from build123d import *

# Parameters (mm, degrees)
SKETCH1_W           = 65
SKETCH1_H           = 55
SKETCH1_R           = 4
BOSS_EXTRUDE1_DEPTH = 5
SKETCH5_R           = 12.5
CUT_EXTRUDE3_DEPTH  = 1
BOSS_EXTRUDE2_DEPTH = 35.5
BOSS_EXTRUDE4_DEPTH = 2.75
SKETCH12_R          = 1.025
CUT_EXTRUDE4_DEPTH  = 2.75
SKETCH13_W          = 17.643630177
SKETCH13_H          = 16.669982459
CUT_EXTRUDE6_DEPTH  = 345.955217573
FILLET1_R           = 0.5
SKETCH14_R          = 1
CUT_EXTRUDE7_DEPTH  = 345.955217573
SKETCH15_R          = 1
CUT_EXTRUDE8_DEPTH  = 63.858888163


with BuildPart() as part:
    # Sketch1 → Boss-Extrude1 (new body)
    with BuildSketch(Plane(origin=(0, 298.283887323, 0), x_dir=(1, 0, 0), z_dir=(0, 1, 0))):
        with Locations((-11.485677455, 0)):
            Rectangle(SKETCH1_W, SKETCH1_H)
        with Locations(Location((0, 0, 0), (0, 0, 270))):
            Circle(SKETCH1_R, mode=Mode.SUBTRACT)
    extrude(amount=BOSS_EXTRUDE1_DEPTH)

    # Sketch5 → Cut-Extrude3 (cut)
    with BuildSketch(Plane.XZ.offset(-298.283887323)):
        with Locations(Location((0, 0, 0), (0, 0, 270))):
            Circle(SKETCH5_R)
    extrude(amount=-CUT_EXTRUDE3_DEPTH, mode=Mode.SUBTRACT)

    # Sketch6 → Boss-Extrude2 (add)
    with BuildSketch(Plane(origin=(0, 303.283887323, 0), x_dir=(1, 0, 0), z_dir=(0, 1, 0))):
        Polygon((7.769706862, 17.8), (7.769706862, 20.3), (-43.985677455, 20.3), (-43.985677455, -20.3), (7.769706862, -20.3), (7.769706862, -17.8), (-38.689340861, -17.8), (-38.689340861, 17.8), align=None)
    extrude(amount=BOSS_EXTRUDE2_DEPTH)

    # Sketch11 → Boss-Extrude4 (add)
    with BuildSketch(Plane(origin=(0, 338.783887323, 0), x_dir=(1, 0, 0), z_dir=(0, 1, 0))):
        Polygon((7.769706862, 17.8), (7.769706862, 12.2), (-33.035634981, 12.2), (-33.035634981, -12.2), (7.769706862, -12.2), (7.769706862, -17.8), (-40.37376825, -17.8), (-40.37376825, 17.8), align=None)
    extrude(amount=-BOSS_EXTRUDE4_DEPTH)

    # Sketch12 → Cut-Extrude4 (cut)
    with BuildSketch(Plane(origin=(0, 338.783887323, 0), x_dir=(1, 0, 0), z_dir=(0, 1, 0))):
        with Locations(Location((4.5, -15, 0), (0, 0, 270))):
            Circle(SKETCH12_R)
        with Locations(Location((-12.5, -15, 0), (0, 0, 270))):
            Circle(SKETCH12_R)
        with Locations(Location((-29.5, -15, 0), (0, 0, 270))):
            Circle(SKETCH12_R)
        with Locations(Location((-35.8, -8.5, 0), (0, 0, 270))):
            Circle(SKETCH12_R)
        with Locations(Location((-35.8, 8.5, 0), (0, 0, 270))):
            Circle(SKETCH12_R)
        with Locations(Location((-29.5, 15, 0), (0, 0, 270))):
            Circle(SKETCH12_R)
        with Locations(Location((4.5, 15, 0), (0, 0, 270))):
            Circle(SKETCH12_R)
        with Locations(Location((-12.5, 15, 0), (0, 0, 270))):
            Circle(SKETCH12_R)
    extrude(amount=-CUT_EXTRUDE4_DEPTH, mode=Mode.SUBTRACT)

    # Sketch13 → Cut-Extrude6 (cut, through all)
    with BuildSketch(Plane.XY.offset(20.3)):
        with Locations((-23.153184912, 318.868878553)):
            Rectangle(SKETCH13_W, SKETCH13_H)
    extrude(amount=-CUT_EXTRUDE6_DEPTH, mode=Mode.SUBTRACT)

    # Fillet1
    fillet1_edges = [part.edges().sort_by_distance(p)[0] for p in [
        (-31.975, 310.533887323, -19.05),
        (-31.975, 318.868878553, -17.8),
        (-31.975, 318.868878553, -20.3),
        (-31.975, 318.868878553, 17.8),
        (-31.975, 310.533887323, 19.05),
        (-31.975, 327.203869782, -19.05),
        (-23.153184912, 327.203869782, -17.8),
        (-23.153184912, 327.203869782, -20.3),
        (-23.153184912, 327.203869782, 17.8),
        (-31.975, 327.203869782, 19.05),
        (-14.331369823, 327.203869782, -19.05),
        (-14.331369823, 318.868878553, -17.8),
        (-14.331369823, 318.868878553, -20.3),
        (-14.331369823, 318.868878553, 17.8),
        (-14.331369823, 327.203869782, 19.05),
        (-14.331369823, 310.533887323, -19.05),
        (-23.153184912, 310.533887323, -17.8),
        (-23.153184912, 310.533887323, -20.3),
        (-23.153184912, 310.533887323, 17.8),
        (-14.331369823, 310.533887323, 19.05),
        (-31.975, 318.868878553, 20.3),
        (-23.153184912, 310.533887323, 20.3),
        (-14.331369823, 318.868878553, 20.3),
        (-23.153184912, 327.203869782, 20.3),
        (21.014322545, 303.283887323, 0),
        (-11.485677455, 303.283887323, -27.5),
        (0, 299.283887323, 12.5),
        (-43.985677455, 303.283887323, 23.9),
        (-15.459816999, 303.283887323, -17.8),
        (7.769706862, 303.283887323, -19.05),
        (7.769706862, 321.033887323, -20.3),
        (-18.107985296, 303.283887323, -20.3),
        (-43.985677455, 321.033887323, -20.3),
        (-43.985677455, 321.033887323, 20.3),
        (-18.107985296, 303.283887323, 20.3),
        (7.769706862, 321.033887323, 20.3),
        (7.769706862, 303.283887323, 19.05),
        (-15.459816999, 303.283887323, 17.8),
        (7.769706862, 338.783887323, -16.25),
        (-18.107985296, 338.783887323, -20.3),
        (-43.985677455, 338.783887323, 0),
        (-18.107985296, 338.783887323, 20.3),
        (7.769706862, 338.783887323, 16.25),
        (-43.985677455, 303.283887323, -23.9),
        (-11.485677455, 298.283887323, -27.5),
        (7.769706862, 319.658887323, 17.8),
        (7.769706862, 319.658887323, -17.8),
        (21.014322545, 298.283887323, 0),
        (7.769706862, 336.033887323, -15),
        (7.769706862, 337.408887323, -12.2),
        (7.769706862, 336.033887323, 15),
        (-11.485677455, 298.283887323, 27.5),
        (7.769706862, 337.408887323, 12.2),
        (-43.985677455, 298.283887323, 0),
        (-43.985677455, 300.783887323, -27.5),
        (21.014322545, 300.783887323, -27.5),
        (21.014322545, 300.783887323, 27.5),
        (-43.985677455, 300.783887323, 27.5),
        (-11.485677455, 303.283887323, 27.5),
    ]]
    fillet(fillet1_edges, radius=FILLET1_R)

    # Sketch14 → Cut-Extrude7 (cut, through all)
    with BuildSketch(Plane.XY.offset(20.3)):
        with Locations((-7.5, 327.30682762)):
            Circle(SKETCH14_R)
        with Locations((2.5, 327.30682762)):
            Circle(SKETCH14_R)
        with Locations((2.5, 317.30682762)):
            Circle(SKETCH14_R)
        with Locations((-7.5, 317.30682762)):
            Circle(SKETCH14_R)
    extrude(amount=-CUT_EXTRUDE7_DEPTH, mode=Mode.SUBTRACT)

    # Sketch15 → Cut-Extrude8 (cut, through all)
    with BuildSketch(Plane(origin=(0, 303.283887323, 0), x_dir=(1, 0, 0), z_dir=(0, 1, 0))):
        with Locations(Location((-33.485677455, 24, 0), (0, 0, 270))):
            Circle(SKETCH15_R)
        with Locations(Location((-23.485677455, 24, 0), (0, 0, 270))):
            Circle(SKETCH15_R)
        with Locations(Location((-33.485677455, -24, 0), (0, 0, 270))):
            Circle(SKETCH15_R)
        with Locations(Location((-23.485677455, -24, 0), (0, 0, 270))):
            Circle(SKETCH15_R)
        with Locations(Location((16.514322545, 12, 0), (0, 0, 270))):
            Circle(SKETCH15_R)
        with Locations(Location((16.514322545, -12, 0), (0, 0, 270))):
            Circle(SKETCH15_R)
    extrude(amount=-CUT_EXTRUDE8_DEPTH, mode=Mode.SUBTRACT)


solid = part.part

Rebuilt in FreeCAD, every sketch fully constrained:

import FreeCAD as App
import Part
import Sketcher
from FreeCAD import Vector
Q = App.Units.Quantity


def edges_at(feature, points):
    """Names of the edges that pass closest to the given points."""
    edges = feature.Shape.Edges
    near = lambda p: min(range(len(edges)), key=lambda i: edges[i].distToShape(Part.Vertex(*p))[0])
    return sorted({f"Edge{near(p) + 1}" for p in points})


def add_polygon(sketch, points):
    """Adds a closed chain of lines whose ends are joined by coincident constraints."""
    first, n = sketch.GeometryCount, len(points)
    for a, b in zip(points, points[1:] + points[:1]):
        sketch.addGeometry(Part.LineSegment(App.Vector(*a, 0), App.Vector(*b, 0)), False)
    for i in range(n):
        sketch.addConstraint(Sketcher.Constraint("Coincident", first + i, 2, first + (i + 1) % n, 1))

doc = App.newDocument("Part")
body = doc.addObject("PartDesign::Body", "Body")

# Sketch on XZ plane
sketch1 = body.newObject("Sketcher::SketchObject", "Sketch")
sketch1.AttachmentSupport = (doc.getObject("XZ_Plane"), [""])
sketch1.MapMode = "FlatFace"
sketch1.AttachmentOffset = App.Placement(Vector(0, 0, -298.283887), App.Rotation())
add_polygon(sketch1, [(-43.985677, -27.5), (-43.985677, 27.5), (21.014323, 27.5), (21.014323, -27.5)])  # lines 0-3
sketch1.addGeometry(Part.Circle(Vector(0, 0, 0), Vector(0, 0, 1), 4), False)  # 4
sketch1.addConstraint([
    Sketcher.Constraint("Vertical", 0),
    Sketcher.Constraint("Horizontal", 1),
    Sketcher.Constraint("Vertical", 2),
    Sketcher.Constraint("Horizontal", 3),
    Sketcher.Constraint("Coincident", 4, 3, -1, 1),
    Sketcher.Constraint("Diameter", 4, Q("8 mm")),
    Sketcher.Constraint("DistanceX", 1, 1, 1, 2, Q("65 mm")),
    Sketcher.Constraint("DistanceY", 0, 1, 0, 2, Q("55 mm")),
    Sketcher.Constraint("DistanceY", -1, 1, 0, 2, Q("27.5 mm")),
    Sketcher.Constraint("DistanceX", 0, 2, -1, 1, Q("43.985677 mm")),
])
pad1 = body.newObject("PartDesign::Pad", "Pad")
pad1.Profile = sketch1
pad1.Length = 5
pad1.Reversed = True

# Sketch on XZ plane
sketch2 = body.newObject("Sketcher::SketchObject", "Sketch001")
sketch2.AttachmentSupport = (doc.getObject("XZ_Plane"), [""])
sketch2.MapMode = "FlatFace"
sketch2.AttachmentOffset = App.Placement(Vector(0, 0, -298.283887), App.Rotation())
sketch2.addGeometry(Part.Circle(Vector(0, 0, 0), Vector(0, 0, 1), 12.5), False)
sketch2.addConstraint([
    Sketcher.Constraint("Coincident", 0, 3, -1, 1),
    Sketcher.Constraint("Diameter", 0, Q("25 mm")),
])
pocket1 = body.newObject("PartDesign::Pocket", "Pocket")
pocket1.Profile = sketch2
pocket1.Length = 1

# Sketch on XZ plane
sketch3 = body.newObject("Sketcher::SketchObject", "Sketch002")
sketch3.AttachmentSupport = (doc.getObject("XZ_Plane"), [""])
sketch3.MapMode = "FlatFace"
sketch3.AttachmentOffset = App.Placement(Vector(0, 0, -303.283887), App.Rotation())
add_polygon(sketch3, [(7.769707, -17.8), (7.769707, -20.3), (-43.985677, -20.3), (-43.985677, 20.3), (7.769707, 20.3), (7.769707, 17.8), (-38.689341, 17.8), (-38.689341, -17.8)])  # lines 0-7
sketch3.addConstraint([
    Sketcher.Constraint("Vertical", 0),
    Sketcher.Constraint("Horizontal", 1),
    Sketcher.Constraint("Vertical", 2),
    Sketcher.Constraint("Horizontal", 3),
    Sketcher.Constraint("Vertical", 4),
    Sketcher.Constraint("Horizontal", 5),
    Sketcher.Constraint("Vertical", 6),
    Sketcher.Constraint("Horizontal", 7),
    Sketcher.Constraint("Symmetric", 0, 2, 3, 2, -1),
    Sketcher.Constraint("Equal", 0, 4),
    Sketcher.Constraint("DistanceY", 0, 2, 0, 1, Q("2.5 mm")),
    Sketcher.Constraint("DistanceY", 2, 1, 2, 2, Q("40.6 mm")),
    Sketcher.Constraint("DistanceX", 1, 2, 1, 1, Q("51.755384 mm")),
    Sketcher.Constraint("DistanceX", 5, 2, 5, 1, Q("46.459048 mm")),
    Sketcher.Constraint("DistanceX", 5, 2, -1, 1, Q("38.689341 mm")),
])
pad2 = body.newObject("PartDesign::Pad", "Pad001")
pad2.Profile = sketch3
pad2.Length = 35.5
pad2.Reversed = True

# Sketch on XZ plane
sketch4 = body.newObject("Sketcher::SketchObject", "Sketch003")
sketch4.AttachmentSupport = (doc.getObject("XZ_Plane"), [""])
sketch4.MapMode = "FlatFace"
sketch4.AttachmentOffset = App.Placement(Vector(0, 0, -338.783887), App.Rotation())
add_polygon(sketch4, [(7.769707, -12.2), (7.769707, -17.8), (-40.373768, -17.8), (-40.373768, 17.8), (7.769707, 17.8), (7.769707, 12.2), (-33.035635, 12.2), (-33.035635, -12.2)])  # lines 0-7
sketch4.addConstraint([
    Sketcher.Constraint("Vertical", 0),
    Sketcher.Constraint("Horizontal", 1),
    Sketcher.Constraint("Vertical", 2),
    Sketcher.Constraint("Horizontal", 3),
    Sketcher.Constraint("Vertical", 4),
    Sketcher.Constraint("Horizontal", 5),
    Sketcher.Constraint("Vertical", 6),
    Sketcher.Constraint("Horizontal", 7),
    Sketcher.Constraint("Symmetric", 0, 2, 3, 2, -1),
    Sketcher.Constraint("Equal", 0, 4),
    Sketcher.Constraint("DistanceY", 0, 2, 0, 1, Q("5.6 mm")),
    Sketcher.Constraint("DistanceY", 2, 1, 2, 2, Q("35.6 mm")),
    Sketcher.Constraint("DistanceX", 5, 2, 5, 1, Q("40.805342 mm")),
    Sketcher.Constraint("DistanceX", 1, 2, 1, 1, Q("48.143475 mm")),
    Sketcher.Constraint("DistanceX", 1, 2, -1, 1, Q("40.373768 mm")),
])
pad3 = body.newObject("PartDesign::Pad", "Pad002")
pad3.Profile = sketch4
pad3.Length = 2.75

# Sketch on XZ plane
sketch5 = body.newObject("Sketcher::SketchObject", "Sketch004")
sketch5.AttachmentSupport = (doc.getObject("XZ_Plane"), [""])
sketch5.MapMode = "FlatFace"
sketch5.AttachmentOffset = App.Placement(Vector(0, 0, -338.783887), App.Rotation())
sketch5.addGeometry([
    Part.Circle(Vector(4.5, 15, 0), Vector(0, 0, 1), 1.025),  # 0
    Part.Circle(Vector(-12.5, 15, 0), Vector(0, 0, 1), 1.025),  # 1
    Part.Circle(Vector(-29.5, 15, 0), Vector(0, 0, 1), 1.025),  # 2
    Part.Circle(Vector(-35.8, 8.5, 0), Vector(0, 0, 1), 1.025),  # 3
    Part.Circle(Vector(-35.8, -8.5, 0), Vector(0, 0, 1), 1.025),  # 4
    Part.Circle(Vector(-29.5, -15, 0), Vector(0, 0, 1), 1.025),  # 5
    Part.Circle(Vector(4.5, -15, 0), Vector(0, 0, 1), 1.025),  # 6
    Part.Circle(Vector(-12.5, -15, 0), Vector(0, 0, 1), 1.025),  # 7
], False)
sketch5.addConstraint([
    Sketcher.Constraint("Equal", 0, 1),
    Sketcher.Constraint("Equal", 1, 2),
    Sketcher.Constraint("Equal", 2, 3),
    Sketcher.Constraint("Equal", 3, 4),
    Sketcher.Constraint("Equal", 4, 5),
    Sketcher.Constraint("Equal", 5, 6),
    Sketcher.Constraint("Equal", 6, 7),
    Sketcher.Constraint("Symmetric", 3, 3, 4, 3, -1),
    Sketcher.Constraint("Symmetric", 2, 3, 5, 3, -1),
    Sketcher.Constraint("Symmetric", 0, 3, 6, 3, -1),
    Sketcher.Constraint("Symmetric", 1, 3, 7, 3, -1),
    Sketcher.Constraint("Horizontal", 0, 3, 1, 3),
    Sketcher.Constraint("Horizontal", 1, 3, 2, 3),
    Sketcher.Constraint("Diameter", 0, Q("2.05 mm")),
    Sketcher.Constraint("DistanceY", -1, 1, 0, 3, Q("15 mm")),
    Sketcher.Constraint("DistanceX", 1, 3, 0, 3, Q("17 mm")),
    Sketcher.Constraint("DistanceX", 2, 3, 1, 3, Q("17 mm")),
    Sketcher.Constraint("DistanceY", 4, 3, 3, 3, Q("17 mm")),
    Sketcher.Constraint("DistanceX", -1, 1, 0, 3, Q("4.5 mm")),
    Sketcher.Constraint("DistanceX", 3, 3, -1, 1, Q("35.8 mm")),
])
pocket2 = body.newObject("PartDesign::Pocket", "Pocket001")
pocket2.Profile = sketch5
pocket2.Length = 2.75
pocket2.Reversed = True

# Sketch on XY plane
sketch6 = body.newObject("Sketcher::SketchObject", "Sketch005")
sketch6.AttachmentSupport = (doc.getObject("XY_Plane"), [""])
sketch6.MapMode = "FlatFace"
sketch6.AttachmentOffset = App.Placement(Vector(0, 0, 20.3), App.Rotation())
add_polygon(sketch6, [(-31.975, 327.20387), (-31.975, 310.533887), (-14.33137, 310.533887), (-14.33137, 327.20387)])  # lines 0-3
sketch6.addConstraint([
    Sketcher.Constraint("Vertical", 0),
    Sketcher.Constraint("Horizontal", 1),
    Sketcher.Constraint("Vertical", 2),
    Sketcher.Constraint("Horizontal", 3),
    Sketcher.Constraint("DistanceX", 0, 2, -1, 1, Q("31.975 mm")),
    Sketcher.Constraint("DistanceX", 1, 1, 1, 2, Q("17.64363 mm")),
    Sketcher.Constraint("DistanceY", 0, 2, 0, 1, Q("16.669982 mm")),
    Sketcher.Constraint("DistanceY", -1, 1, 2, 2, Q("327.20387 mm")),
])
pocket3 = body.newObject("PartDesign::Pocket", "Pocket002")
pocket3.Profile = sketch6
pocket3.Type = "ThroughAll"
doc.recompute()

fillet = body.newObject("PartDesign::Fillet", "Fillet")
fillet.Base = (pocket3, edges_at(pocket3, [
    (-31.975, 310.534, -19.05),
    (-31.975, 318.869, -17.8),
    (-31.975, 318.869, -20.3),
    (-31.975, 318.869, 17.8),
    (-31.975, 310.534, 19.05),
    (-31.975, 327.204, -19.05),
    (-23.153, 327.204, -17.8),
    (-23.153, 327.204, -20.3),
    (-23.153, 327.204, 17.8),
    (-31.975, 327.204, 19.05),
    (-14.331, 327.204, -19.05),
    (-14.331, 318.869, -17.8),
    (-14.331, 318.869, -20.3),
    (-14.331, 318.869, 17.8),
    (-14.331, 327.204, 19.05),
    (-14.331, 310.534, -19.05),
    (-23.153, 310.534, -17.8),
    (-23.153, 310.534, -20.3),
    (-23.153, 310.534, 17.8),
    (-14.331, 310.534, 19.05),
    (-31.975, 318.869, 20.3),
    (-23.153, 310.534, 20.3),
    (-14.331, 318.869, 20.3),
    (-23.153, 327.204, 20.3),
    (21.014, 303.284, 0),
    (-11.486, 303.284, -27.5),
    (0, 299.284, 12.5),
    (-43.986, 303.284, 23.9),
    (-15.46, 303.284, -17.8),
    (7.77, 303.284, -19.05),
    (7.77, 321.034, -20.3),
    (-18.108, 303.284, -20.3),
    (-43.986, 321.034, -20.3),
    (-43.986, 321.034, 20.3),
    (-18.108, 303.284, 20.3),
    (7.77, 321.034, 20.3),
    (7.77, 303.284, 19.05),
    (-15.46, 303.284, 17.8),
    (7.77, 338.784, -16.25),
    (-18.108, 338.784, -20.3),
    (-43.986, 338.784, 0),
    (-18.108, 338.784, 20.3),
    (7.77, 338.784, 16.25),
    (-43.986, 303.284, -23.9),
    (-11.486, 298.284, -27.5),
    (7.77, 319.659, 17.8),
    (7.77, 319.659, -17.8),
    (21.014, 298.284, 0),
    (7.77, 336.034, -15),
    (7.77, 337.409, -12.2),
    (7.77, 336.034, 15),
    (-11.486, 298.284, 27.5),
    (7.77, 337.409, 12.2),
    (-43.986, 298.284, 0),
    (-43.986, 300.784, -27.5),
    (21.014, 300.784, -27.5),
    (21.014, 300.784, 27.5),
    (-43.986, 300.784, 27.5),
    (-11.486, 303.284, 27.5),
]))
fillet.Radius = 0.5

# Sketch on XY plane
sketch7 = body.newObject("Sketcher::SketchObject", "Sketch006")
sketch7.AttachmentSupport = (doc.getObject("XY_Plane"), [""])
sketch7.MapMode = "FlatFace"
sketch7.AttachmentOffset = App.Placement(Vector(0, 0, 20.3), App.Rotation())
sketch7.addGeometry([
    Part.Circle(Vector(-7.5, 327.306828, 0), Vector(0, 0, 1), 1),
    Part.Circle(Vector(2.5, 327.306828, 0), Vector(0, 0, 1), 1),
    Part.Circle(Vector(2.5, 317.306828, 0), Vector(0, 0, 1), 1),
    Part.Circle(Vector(-7.5, 317.306828, 0), Vector(0, 0, 1), 1),
], False)
sketch7.addConstraint([
    Sketcher.Constraint("Equal", 0, 1),
    Sketcher.Constraint("Equal", 1, 2),
    Sketcher.Constraint("Equal", 2, 3),
    Sketcher.Constraint("Horizontal", 0, 3, 1, 3),
    Sketcher.Constraint("Horizontal", 2, 3, 3, 3),
    Sketcher.Constraint("Vertical", 1, 3, 2, 3),
    Sketcher.Constraint("Vertical", 0, 3, 3, 3),
    Sketcher.Constraint("Diameter", 0, Q("2 mm")),
    Sketcher.Constraint("DistanceX", 0, 3, 1, 3, Q("10 mm")),
    Sketcher.Constraint("DistanceY", 2, 3, 1, 3, Q("10 mm")),
    Sketcher.Constraint("DistanceX", 0, 3, -1, 1, Q("7.5 mm")),
    Sketcher.Constraint("DistanceY", -1, 1, 0, 3, Q("327.306828 mm")),
])
pocket4 = body.newObject("PartDesign::Pocket", "Pocket003")
pocket4.Profile = sketch7
pocket4.Type = "ThroughAll"

# Sketch on XZ plane
sketch8 = body.newObject("Sketcher::SketchObject", "Sketch007")
sketch8.AttachmentSupport = (doc.getObject("XZ_Plane"), [""])
sketch8.MapMode = "FlatFace"
sketch8.AttachmentOffset = App.Placement(Vector(0, 0, -303.283887), App.Rotation())
sketch8.addGeometry([
    Part.Circle(Vector(-33.485677, -24, 0), Vector(0, 0, 1), 1),  # 0
    Part.Circle(Vector(-23.485677, -24, 0), Vector(0, 0, 1), 1),  # 1
    Part.Circle(Vector(-33.485677, 24, 0), Vector(0, 0, 1), 1),  # 2
    Part.Circle(Vector(-23.485677, 24, 0), Vector(0, 0, 1), 1),  # 3
    Part.Circle(Vector(16.514323, -12, 0), Vector(0, 0, 1), 1),  # 4
    Part.Circle(Vector(16.514323, 12, 0), Vector(0, 0, 1), 1),  # 5
], False)
sketch8.addConstraint([
    Sketcher.Constraint("Equal", 0, 1),
    Sketcher.Constraint("Equal", 1, 2),
    Sketcher.Constraint("Equal", 2, 3),
    Sketcher.Constraint("Equal", 3, 4),
    Sketcher.Constraint("Equal", 4, 5),
    Sketcher.Constraint("Symmetric", 0, 3, 2, 3, -1),
    Sketcher.Constraint("Symmetric", 1, 3, 3, 3, -1),
    Sketcher.Constraint("Symmetric", 4, 3, 5, 3, -1),
    Sketcher.Constraint("Horizontal", 0, 3, 1, 3),
    Sketcher.Constraint("Diameter", 0, Q("2 mm")),
    Sketcher.Constraint("DistanceY", 0, 3, -1, 1, Q("24 mm")),
    Sketcher.Constraint("DistanceY", 4, 3, -1, 1, Q("12 mm")),
    Sketcher.Constraint("DistanceX", 0, 3, 1, 3, Q("10 mm")),
    Sketcher.Constraint("DistanceX", 1, 3, 4, 3, Q("40 mm")),
    Sketcher.Constraint("DistanceX", 0, 3, -1, 1, Q("33.485677 mm")),
])
pocket5 = body.newObject("PartDesign::Pocket", "Pocket004")
pocket5.Profile = sketch8
pocket5.Type = "ThroughAll"
pocket5.Reversed = True

doc.recompute()
